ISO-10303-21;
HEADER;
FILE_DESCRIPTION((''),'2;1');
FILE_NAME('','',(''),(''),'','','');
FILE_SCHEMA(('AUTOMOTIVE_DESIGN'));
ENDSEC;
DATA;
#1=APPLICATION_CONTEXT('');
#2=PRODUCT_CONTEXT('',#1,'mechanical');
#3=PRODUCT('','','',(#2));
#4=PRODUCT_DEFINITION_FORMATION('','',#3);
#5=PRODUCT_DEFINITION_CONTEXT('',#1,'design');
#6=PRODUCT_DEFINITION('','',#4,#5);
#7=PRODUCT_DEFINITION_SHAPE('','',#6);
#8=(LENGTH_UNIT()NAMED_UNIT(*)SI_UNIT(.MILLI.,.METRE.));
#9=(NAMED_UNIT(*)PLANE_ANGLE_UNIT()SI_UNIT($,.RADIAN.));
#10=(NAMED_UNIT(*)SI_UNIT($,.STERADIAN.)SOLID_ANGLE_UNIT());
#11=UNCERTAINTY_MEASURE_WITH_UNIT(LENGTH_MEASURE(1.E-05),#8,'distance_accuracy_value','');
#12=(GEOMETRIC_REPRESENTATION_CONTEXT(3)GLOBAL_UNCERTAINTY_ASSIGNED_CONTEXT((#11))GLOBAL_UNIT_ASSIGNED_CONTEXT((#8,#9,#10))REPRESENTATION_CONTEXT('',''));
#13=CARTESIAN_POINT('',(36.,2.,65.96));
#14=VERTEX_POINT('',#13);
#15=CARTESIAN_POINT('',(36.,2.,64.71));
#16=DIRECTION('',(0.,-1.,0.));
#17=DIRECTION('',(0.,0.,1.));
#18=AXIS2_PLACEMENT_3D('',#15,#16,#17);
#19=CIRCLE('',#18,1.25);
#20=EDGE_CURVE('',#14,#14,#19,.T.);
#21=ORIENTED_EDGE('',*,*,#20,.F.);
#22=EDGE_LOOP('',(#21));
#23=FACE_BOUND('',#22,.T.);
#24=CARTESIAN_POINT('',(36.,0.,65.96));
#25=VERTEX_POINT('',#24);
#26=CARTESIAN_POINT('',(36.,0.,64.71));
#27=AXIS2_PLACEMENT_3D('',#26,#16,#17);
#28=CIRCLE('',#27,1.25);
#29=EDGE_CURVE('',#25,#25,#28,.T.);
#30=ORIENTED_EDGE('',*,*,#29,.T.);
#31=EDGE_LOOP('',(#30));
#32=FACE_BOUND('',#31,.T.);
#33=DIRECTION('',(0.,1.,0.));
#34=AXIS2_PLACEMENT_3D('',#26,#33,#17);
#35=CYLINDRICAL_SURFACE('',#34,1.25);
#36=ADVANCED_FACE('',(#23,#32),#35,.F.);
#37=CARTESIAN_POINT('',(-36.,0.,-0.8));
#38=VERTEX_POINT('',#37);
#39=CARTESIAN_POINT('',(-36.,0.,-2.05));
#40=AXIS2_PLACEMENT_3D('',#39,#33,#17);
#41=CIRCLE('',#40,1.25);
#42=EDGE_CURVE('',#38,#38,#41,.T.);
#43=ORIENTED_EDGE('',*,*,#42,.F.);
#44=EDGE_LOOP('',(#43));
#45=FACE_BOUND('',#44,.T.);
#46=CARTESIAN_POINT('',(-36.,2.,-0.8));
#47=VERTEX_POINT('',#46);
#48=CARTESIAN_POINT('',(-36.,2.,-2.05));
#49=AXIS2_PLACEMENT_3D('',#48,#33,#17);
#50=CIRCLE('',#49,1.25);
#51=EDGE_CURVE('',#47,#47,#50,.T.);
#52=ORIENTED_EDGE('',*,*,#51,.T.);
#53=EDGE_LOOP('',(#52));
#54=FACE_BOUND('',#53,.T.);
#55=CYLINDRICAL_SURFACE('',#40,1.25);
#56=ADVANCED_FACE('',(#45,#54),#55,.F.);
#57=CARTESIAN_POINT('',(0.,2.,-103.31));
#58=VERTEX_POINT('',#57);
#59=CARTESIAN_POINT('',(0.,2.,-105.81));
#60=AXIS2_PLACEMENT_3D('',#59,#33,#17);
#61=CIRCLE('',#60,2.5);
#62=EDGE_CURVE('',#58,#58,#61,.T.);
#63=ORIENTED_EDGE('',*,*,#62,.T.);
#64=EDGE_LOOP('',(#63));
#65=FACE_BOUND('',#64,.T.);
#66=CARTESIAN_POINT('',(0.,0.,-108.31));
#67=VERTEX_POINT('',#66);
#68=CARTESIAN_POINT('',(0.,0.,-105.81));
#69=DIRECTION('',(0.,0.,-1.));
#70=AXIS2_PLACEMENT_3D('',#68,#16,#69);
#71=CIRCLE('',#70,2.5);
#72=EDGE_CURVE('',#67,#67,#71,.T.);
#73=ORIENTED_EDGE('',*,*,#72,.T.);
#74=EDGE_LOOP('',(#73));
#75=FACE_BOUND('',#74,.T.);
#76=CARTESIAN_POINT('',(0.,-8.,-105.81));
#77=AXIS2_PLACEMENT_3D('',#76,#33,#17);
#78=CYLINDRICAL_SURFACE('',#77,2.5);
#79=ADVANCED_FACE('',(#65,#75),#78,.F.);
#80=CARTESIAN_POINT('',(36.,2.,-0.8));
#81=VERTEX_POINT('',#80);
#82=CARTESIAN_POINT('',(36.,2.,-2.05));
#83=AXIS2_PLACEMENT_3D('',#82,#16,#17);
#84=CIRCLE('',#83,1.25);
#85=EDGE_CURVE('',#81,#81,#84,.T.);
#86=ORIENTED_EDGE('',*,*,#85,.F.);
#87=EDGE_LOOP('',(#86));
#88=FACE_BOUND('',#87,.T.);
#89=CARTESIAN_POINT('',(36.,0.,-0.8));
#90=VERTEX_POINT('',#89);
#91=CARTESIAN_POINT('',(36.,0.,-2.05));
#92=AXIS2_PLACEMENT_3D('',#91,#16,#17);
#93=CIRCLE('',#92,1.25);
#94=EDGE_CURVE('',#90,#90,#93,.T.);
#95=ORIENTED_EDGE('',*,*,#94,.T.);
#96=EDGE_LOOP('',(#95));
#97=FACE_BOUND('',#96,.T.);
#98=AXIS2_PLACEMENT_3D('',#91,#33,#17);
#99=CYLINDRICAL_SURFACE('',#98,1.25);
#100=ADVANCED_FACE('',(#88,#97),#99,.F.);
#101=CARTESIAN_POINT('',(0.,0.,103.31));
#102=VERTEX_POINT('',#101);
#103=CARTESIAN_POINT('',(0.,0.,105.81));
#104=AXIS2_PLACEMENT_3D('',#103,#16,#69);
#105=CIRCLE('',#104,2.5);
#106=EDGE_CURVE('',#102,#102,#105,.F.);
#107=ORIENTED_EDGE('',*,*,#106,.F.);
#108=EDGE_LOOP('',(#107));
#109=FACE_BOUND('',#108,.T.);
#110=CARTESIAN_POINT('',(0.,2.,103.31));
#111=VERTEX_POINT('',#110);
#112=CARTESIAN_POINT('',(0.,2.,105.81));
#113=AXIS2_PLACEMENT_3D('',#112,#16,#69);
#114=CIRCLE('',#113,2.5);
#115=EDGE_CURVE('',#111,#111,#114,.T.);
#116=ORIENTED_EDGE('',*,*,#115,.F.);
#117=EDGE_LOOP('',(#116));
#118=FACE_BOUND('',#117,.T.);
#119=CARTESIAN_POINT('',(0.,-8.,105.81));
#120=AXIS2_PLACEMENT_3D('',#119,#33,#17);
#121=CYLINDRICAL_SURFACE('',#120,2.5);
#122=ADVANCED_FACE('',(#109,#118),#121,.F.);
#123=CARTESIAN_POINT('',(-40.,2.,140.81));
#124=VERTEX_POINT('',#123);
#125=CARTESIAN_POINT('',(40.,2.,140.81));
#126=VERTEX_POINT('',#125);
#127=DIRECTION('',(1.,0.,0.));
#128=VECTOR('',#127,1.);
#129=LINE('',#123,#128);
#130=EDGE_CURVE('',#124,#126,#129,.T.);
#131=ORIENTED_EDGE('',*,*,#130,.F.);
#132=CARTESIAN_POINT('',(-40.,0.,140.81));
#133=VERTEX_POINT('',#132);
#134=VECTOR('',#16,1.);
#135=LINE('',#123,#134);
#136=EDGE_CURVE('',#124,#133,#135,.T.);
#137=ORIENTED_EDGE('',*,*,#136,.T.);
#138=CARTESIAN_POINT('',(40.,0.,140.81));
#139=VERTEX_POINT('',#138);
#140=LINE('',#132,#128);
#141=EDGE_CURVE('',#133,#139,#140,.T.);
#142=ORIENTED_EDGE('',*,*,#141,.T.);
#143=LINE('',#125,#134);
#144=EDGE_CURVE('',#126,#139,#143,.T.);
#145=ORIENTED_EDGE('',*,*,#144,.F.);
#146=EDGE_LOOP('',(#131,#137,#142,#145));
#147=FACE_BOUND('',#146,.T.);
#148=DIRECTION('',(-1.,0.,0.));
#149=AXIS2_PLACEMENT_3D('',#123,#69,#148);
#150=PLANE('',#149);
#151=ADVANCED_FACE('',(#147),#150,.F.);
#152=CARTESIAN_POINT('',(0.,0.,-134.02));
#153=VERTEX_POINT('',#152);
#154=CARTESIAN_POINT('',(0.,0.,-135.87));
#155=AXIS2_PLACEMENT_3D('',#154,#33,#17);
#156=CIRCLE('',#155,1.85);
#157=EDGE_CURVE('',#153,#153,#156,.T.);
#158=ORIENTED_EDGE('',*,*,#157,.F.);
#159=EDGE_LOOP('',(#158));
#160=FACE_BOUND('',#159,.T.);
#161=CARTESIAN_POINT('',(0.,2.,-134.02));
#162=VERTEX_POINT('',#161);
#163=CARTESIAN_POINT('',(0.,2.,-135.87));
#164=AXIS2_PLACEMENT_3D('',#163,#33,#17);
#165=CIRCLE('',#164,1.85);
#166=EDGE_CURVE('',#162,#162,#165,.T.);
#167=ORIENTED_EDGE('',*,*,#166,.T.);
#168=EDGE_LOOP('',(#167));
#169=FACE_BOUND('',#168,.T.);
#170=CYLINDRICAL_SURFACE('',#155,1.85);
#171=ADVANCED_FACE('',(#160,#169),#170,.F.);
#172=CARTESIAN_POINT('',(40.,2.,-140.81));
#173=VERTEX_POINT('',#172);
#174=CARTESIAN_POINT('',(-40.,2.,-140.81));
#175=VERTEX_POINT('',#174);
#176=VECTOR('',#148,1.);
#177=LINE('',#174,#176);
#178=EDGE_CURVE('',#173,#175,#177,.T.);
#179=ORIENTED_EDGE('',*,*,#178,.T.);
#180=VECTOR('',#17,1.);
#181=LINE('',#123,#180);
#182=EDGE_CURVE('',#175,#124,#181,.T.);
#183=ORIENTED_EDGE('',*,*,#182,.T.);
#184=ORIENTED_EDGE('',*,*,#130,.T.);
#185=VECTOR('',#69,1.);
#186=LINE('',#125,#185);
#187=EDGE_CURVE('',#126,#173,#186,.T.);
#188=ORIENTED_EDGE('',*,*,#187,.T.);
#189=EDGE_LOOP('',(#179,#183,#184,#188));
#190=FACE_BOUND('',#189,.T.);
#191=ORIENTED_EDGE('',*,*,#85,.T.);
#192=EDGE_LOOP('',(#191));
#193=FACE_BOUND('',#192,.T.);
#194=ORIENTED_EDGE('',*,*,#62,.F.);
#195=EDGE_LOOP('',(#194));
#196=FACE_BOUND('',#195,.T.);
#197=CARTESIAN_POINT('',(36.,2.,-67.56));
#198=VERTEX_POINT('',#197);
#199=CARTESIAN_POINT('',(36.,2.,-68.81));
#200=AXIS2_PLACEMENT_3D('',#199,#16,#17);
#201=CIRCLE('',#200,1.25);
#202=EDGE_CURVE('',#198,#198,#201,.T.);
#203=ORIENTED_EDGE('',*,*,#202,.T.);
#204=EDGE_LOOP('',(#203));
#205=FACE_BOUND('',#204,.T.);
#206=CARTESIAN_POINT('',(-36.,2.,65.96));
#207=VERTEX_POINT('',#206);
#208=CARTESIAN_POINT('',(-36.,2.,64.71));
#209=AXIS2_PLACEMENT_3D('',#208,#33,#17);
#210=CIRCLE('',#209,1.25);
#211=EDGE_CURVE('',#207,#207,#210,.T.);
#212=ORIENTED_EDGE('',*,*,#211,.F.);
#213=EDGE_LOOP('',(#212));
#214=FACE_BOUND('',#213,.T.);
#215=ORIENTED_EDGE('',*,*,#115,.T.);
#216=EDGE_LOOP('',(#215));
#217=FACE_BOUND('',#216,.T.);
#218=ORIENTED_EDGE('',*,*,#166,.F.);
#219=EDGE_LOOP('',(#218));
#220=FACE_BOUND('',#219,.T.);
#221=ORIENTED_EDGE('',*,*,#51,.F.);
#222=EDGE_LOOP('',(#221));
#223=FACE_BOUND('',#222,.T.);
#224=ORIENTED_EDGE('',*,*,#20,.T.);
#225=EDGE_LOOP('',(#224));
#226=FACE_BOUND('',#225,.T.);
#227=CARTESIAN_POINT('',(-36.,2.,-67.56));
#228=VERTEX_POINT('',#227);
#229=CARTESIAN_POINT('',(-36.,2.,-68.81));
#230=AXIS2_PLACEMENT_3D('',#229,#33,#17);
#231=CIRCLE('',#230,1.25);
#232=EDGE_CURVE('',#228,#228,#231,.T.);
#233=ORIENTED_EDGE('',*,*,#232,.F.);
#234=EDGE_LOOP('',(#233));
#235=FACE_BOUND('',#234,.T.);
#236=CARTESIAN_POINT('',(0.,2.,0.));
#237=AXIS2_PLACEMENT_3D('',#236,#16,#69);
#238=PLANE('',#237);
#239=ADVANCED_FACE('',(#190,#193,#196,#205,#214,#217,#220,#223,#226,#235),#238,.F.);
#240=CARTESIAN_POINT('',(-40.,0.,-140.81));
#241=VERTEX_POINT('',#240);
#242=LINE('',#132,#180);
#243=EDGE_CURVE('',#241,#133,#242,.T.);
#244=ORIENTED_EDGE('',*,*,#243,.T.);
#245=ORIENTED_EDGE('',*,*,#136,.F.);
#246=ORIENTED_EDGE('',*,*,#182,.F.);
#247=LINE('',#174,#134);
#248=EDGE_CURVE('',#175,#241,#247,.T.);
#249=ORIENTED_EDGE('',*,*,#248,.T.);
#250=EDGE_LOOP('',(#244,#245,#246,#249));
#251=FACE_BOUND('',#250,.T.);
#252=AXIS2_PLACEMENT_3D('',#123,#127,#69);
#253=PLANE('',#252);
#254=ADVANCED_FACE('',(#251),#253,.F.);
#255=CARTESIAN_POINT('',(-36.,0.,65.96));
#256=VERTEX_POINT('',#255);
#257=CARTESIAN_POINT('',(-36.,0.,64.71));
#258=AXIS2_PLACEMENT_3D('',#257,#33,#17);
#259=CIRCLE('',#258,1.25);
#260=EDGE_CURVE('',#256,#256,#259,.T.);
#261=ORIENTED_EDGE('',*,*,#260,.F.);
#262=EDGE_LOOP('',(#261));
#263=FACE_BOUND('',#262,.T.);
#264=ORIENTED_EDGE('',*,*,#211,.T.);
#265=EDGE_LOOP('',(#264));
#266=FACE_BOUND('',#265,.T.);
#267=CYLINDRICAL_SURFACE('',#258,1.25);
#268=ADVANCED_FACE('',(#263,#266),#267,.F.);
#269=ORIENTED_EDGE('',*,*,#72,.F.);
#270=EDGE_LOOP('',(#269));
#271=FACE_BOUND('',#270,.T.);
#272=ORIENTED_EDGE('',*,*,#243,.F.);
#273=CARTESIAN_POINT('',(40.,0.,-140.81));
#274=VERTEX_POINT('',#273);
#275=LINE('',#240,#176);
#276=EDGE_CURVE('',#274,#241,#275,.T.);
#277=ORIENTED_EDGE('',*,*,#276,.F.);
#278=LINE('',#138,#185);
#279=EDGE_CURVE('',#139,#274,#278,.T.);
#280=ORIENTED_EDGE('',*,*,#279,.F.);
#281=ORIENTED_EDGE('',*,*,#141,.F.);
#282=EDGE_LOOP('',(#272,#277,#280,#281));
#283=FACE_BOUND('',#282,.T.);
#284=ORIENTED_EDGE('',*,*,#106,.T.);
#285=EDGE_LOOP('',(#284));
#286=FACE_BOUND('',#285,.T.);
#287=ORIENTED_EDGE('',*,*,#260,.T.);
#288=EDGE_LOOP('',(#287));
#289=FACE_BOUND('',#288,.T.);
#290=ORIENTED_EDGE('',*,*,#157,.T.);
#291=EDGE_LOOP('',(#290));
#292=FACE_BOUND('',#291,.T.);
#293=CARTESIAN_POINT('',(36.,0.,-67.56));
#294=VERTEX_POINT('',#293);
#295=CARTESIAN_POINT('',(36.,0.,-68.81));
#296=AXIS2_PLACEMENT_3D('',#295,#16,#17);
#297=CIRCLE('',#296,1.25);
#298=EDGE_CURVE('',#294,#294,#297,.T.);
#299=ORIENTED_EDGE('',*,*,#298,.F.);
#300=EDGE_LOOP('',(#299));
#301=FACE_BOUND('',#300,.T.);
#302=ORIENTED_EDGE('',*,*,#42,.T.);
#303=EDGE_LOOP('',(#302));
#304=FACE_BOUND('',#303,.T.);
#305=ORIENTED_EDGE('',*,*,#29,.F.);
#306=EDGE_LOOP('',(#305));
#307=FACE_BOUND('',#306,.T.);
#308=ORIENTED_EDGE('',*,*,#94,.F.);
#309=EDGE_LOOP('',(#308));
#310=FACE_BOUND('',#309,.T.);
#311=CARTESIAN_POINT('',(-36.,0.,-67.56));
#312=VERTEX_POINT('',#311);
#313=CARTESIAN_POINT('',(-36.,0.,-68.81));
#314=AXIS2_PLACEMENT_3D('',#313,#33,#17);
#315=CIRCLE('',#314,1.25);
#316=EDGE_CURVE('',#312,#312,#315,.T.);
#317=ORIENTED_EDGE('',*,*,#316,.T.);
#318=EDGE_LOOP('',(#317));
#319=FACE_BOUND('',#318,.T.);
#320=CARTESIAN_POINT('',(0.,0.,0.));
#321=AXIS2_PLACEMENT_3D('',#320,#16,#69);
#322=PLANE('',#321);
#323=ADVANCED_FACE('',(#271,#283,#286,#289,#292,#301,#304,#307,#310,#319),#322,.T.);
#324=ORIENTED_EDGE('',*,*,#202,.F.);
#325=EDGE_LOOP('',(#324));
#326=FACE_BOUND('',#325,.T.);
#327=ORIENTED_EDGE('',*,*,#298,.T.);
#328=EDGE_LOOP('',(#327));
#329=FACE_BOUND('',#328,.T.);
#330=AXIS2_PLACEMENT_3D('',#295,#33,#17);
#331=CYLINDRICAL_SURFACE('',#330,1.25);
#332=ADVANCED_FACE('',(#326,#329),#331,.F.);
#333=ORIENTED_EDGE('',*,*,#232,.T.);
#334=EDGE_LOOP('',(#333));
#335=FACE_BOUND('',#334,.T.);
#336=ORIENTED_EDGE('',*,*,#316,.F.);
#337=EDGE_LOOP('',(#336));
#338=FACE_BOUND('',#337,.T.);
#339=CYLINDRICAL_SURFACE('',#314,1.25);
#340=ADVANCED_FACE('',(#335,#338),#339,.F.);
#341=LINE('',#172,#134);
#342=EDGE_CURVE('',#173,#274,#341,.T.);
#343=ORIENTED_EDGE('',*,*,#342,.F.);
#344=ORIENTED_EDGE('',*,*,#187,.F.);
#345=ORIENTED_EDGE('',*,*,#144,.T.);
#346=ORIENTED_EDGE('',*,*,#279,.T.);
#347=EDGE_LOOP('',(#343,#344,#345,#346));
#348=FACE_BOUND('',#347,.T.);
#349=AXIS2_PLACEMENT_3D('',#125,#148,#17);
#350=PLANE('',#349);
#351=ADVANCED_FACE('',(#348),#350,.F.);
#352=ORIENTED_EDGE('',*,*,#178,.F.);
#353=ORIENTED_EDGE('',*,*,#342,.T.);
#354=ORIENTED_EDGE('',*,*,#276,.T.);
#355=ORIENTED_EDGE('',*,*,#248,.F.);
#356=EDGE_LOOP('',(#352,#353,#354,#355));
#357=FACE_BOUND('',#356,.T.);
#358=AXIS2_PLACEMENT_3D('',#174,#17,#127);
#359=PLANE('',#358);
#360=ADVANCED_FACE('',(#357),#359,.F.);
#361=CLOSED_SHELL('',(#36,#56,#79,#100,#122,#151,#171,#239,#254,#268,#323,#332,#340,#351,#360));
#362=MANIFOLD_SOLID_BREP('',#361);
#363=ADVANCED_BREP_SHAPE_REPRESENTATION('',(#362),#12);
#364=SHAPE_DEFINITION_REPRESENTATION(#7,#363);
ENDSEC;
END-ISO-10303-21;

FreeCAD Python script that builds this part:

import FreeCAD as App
import Part
import Sketcher

doc = App.newDocument("Part")
params = doc.addObject("Spreadsheet::Sheet", "Params")
for row, (alias, value) in enumerate([
    ("sketch1_width", "80 mm"),
    ("sketch1_height", "281.62 mm"),
    ("pad1_length", "2 mm"),
    ("sketch2_diameter", "3.7 mm"),
    ("pocket1_length", "2 mm"),
    ("sketch3_diameter", "2.5 mm"),
    ("pocket2_length", "2 mm"),
    ("linearpattern_pitch", "66.76 mm"),
    ("sketch4_diameter", "2.5 mm"),
    ("pocket3_length", "2 mm"),
    ("sketch5_diameter", "2.5 mm"),
    ("pocket4_length", "2 mm"),
    ("sketch6_diameter", "5 mm"),
    ("pocket5_length", "10 mm"),
], start=1):
    params.set(f"A{row}", alias)
    params.set(f"B{row}", "=" + value)
    params.setAlias(f"B{row}", alias)

body = doc.addObject("PartDesign::Body", "Body")

sketch1 = body.newObject("Sketcher::SketchObject", "Sketch")
sketch1.AttachmentSupport = (doc.getObject("XZ_Plane"), [""])
sketch1.MapMode = "FlatFace"
sketch1.addGeometry(Part.LineSegment(App.Vector(-40, -141, 0), App.Vector(-40, 141, 0)), False)
sketch1.addGeometry(Part.LineSegment(App.Vector(-40, 141, 0), App.Vector(40, 141, 0)), False)
sketch1.addGeometry(Part.LineSegment(App.Vector(40, 141, 0), App.Vector(40, -141, 0)), False)
sketch1.addGeometry(Part.LineSegment(App.Vector(40, -141, 0), App.Vector(-40, -141, 0)), False)
sketch1.addConstraint(Sketcher.Constraint("Coincident", 0, 2, 1, 1))
sketch1.addConstraint(Sketcher.Constraint("Coincident", 1, 2, 2, 1))
sketch1.addConstraint(Sketcher.Constraint("Coincident", 2, 2, 3, 1))
sketch1.addConstraint(Sketcher.Constraint("Coincident", 3, 2, 0, 1))
sketch1.addConstraint(Sketcher.Constraint("Vertical", 0))
sketch1.addConstraint(Sketcher.Constraint("Horizontal", 1))
sketch1.addConstraint(Sketcher.Constraint("Vertical", 2))
sketch1.addConstraint(Sketcher.Constraint("Horizontal", 3))
sketch1.addConstraint(Sketcher.Constraint("Symmetric", 0, 2, 2, 2, -1, 1))
sketch1.addConstraint(Sketcher.Constraint("DistanceX", 1, 1, 1, 2, 80.0))
sketch1.addConstraint(Sketcher.Constraint("DistanceY", 0, 1, 0, 2, 281.62))
sketch1.setExpression("Constraints[9]", "Params.sketch1_width")
sketch1.setExpression("Constraints[10]", "Params.sketch1_height")
pad1 = body.newObject("PartDesign::Pad", "Pad")
pad1.Profile = sketch1
pad1.setExpression("Length", "Params.pad1_length")
pad1.Reversed = True

sketch2 = body.newObject("Sketcher::SketchObject", "Sketch001")
sketch2.AttachmentSupport = (doc.getObject("XZ_Plane"), [""])
sketch2.MapMode = "FlatFace"
sketch2.AttachmentOffset = App.Placement(App.Vector(0, 0, -2), App.Rotation())
sketch2.addGeometry(Part.Circle(App.Vector(0, -135.9, 0), App.Vector(0, 0, 1), 1.9), False)
sketch2.addConstraint(Sketcher.Constraint("PointOnObject", 0, 3, -2))
sketch2.addConstraint(Sketcher.Constraint("Diameter", 0, 3.7))
sketch2.addConstraint(Sketcher.Constraint("DistanceY", 0, 3, -1, 1, 135.87))
sketch2.setExpression("Constraints[1]", "Params.sketch2_diameter")
pocket1 = body.newObject("PartDesign::Pocket", "Pocket")
pocket1.Profile = sketch2
pocket1.setExpression("Length", "Params.pocket1_length")
pocket1.Reversed = True

sketch3 = body.newObject("Sketcher::SketchObject", "Sketch002")
sketch3.AttachmentSupport = (doc.getObject("XZ_Plane"), [""])
sketch3.MapMode = "FlatFace"
sketch3.AttachmentOffset = App.Placement(App.Vector(0, 0, -2), App.Rotation())
sketch3.addGeometry(Part.Circle(App.Vector(-36, -68.8, 0), App.Vector(0, 0, 1), 1.2), False)
sketch3.addConstraint(Sketcher.Constraint("Diameter", 0, 2.5))
sketch3.addConstraint(Sketcher.Constraint("DistanceX", 0, 3, -1, 1, 36.0))
sketch3.addConstraint(Sketcher.Constraint("DistanceY", 0, 3, -1, 1, 68.81))
sketch3.setExpression("Constraints[0]", "Params.sketch3_diameter")
pocket2 = body.newObject("PartDesign::Pocket", "Pocket001")
pocket2.Profile = sketch3
pocket2.setExpression("Length", "Params.pocket2_length")
pocket2.Reversed = True
doc.recompute()

linearpattern = body.newObject("PartDesign::LinearPattern", "LinearPattern")
linearpattern.Originals = [pocket2]
linearpattern.Direction = (doc.getObject("Z_Axis"), [""])
linearpattern.Mode = "offset"
linearpattern.setExpression("Offset", "Params.linearpattern_pitch")
linearpattern.Occurrences = 3
body.Tip = linearpattern
doc.recompute()

mirrored = body.newObject("PartDesign::Mirrored", "Mirrored")
mirrored.Originals = [pocket2]
mirrored.MirrorPlane = (doc.getObject("YZ_Plane"), [""])
body.Tip = mirrored

sketch4 = body.newObject("Sketcher::SketchObject", "Sketch003")
sketch4.AttachmentSupport = (doc.getObject("XZ_Plane"), [""])
sketch4.MapMode = "FlatFace"
sketch4.AttachmentOffset = App.Placement(App.Vector(0, 0, -2), App.Rotation())
sketch4.addGeometry(Part.Circle(App.Vector(36, -2, 0), App.Vector(0, 0, 1), 1.2), False)
sketch4.addConstraint(Sketcher.Constraint("Diameter", 0, 2.5))
sketch4.addConstraint(Sketcher.Constraint("DistanceX", -1, 1, 0, 3, 36.0))
sketch4.addConstraint(Sketcher.Constraint("DistanceY", 0, 3, -1, 1, 2.05))
sketch4.setExpression("Constraints[0]", "Params.sketch4_diameter")
pocket3 = body.newObject("PartDesign::Pocket", "Pocket002")
pocket3.Profile = sketch4
pocket3.setExpression("Length", "Params.pocket3_length")
pocket3.Reversed = True

sketch5 = body.newObject("Sketcher::SketchObject", "Sketch004")
sketch5.AttachmentSupport = (doc.getObject("XZ_Plane"), [""])
sketch5.MapMode = "FlatFace"
sketch5.AttachmentOffset = App.Placement(App.Vector(0, 0, -2), App.Rotation())
sketch5.addGeometry(Part.Circle(App.Vector(36, 64.7, 0), App.Vector(0, 0, 1), 1.2), False)
sketch5.addConstraint(Sketcher.Constraint("Diameter", 0, 2.5))
sketch5.addConstraint(Sketcher.Constraint("DistanceX", -1, 1, 0, 3, 36.0))
sketch5.addConstraint(Sketcher.Constraint("DistanceY", -1, 1, 0, 3, 64.71))
sketch5.setExpression("Constraints[0]", "Params.sketch5_diameter")
pocket4 = body.newObject("PartDesign::Pocket", "Pocket003")
pocket4.Profile = sketch5
pocket4.setExpression("Length", "Params.pocket4_length")
pocket4.Reversed = True

sketch6 = body.newObject("Sketcher::SketchObject", "Sketch005")
sketch6.AttachmentSupport = (doc.getObject("XZ_Plane"), [""])
sketch6.MapMode = "FlatFace"
sketch6.AttachmentOffset = App.Placement(App.Vector(0, 0, -2), App.Rotation())
sketch6.addGeometry(Part.Circle(App.Vector(0, -105.8, 0), App.Vector(0, 0, 1), 2.5), False)
sketch6.addConstraint(Sketcher.Constraint("PointOnObject", 0, 3, -2))
sketch6.addConstraint(Sketcher.Constraint("Diameter", 0, 5.0))
sketch6.addConstraint(Sketcher.Constraint("DistanceY", 0, 3, -1, 1, 105.81))
sketch6.setExpression("Constraints[1]", "Params.sketch6_diameter")
pocket5 = body.newObject("PartDesign::Pocket", "Pocket004")
pocket5.Profile = sketch6
pocket5.setExpression("Length", "Params.pocket5_length")
pocket5.Reversed = True
doc.recompute()

mirrored2 = body.newObject("PartDesign::Mirrored", "Mirrored001")
mirrored2.Originals = [pocket5]
mirrored2.MirrorPlane = (doc.getObject("XY_Plane"), [""])
body.Tip = mirrored2

doc.recompute()
